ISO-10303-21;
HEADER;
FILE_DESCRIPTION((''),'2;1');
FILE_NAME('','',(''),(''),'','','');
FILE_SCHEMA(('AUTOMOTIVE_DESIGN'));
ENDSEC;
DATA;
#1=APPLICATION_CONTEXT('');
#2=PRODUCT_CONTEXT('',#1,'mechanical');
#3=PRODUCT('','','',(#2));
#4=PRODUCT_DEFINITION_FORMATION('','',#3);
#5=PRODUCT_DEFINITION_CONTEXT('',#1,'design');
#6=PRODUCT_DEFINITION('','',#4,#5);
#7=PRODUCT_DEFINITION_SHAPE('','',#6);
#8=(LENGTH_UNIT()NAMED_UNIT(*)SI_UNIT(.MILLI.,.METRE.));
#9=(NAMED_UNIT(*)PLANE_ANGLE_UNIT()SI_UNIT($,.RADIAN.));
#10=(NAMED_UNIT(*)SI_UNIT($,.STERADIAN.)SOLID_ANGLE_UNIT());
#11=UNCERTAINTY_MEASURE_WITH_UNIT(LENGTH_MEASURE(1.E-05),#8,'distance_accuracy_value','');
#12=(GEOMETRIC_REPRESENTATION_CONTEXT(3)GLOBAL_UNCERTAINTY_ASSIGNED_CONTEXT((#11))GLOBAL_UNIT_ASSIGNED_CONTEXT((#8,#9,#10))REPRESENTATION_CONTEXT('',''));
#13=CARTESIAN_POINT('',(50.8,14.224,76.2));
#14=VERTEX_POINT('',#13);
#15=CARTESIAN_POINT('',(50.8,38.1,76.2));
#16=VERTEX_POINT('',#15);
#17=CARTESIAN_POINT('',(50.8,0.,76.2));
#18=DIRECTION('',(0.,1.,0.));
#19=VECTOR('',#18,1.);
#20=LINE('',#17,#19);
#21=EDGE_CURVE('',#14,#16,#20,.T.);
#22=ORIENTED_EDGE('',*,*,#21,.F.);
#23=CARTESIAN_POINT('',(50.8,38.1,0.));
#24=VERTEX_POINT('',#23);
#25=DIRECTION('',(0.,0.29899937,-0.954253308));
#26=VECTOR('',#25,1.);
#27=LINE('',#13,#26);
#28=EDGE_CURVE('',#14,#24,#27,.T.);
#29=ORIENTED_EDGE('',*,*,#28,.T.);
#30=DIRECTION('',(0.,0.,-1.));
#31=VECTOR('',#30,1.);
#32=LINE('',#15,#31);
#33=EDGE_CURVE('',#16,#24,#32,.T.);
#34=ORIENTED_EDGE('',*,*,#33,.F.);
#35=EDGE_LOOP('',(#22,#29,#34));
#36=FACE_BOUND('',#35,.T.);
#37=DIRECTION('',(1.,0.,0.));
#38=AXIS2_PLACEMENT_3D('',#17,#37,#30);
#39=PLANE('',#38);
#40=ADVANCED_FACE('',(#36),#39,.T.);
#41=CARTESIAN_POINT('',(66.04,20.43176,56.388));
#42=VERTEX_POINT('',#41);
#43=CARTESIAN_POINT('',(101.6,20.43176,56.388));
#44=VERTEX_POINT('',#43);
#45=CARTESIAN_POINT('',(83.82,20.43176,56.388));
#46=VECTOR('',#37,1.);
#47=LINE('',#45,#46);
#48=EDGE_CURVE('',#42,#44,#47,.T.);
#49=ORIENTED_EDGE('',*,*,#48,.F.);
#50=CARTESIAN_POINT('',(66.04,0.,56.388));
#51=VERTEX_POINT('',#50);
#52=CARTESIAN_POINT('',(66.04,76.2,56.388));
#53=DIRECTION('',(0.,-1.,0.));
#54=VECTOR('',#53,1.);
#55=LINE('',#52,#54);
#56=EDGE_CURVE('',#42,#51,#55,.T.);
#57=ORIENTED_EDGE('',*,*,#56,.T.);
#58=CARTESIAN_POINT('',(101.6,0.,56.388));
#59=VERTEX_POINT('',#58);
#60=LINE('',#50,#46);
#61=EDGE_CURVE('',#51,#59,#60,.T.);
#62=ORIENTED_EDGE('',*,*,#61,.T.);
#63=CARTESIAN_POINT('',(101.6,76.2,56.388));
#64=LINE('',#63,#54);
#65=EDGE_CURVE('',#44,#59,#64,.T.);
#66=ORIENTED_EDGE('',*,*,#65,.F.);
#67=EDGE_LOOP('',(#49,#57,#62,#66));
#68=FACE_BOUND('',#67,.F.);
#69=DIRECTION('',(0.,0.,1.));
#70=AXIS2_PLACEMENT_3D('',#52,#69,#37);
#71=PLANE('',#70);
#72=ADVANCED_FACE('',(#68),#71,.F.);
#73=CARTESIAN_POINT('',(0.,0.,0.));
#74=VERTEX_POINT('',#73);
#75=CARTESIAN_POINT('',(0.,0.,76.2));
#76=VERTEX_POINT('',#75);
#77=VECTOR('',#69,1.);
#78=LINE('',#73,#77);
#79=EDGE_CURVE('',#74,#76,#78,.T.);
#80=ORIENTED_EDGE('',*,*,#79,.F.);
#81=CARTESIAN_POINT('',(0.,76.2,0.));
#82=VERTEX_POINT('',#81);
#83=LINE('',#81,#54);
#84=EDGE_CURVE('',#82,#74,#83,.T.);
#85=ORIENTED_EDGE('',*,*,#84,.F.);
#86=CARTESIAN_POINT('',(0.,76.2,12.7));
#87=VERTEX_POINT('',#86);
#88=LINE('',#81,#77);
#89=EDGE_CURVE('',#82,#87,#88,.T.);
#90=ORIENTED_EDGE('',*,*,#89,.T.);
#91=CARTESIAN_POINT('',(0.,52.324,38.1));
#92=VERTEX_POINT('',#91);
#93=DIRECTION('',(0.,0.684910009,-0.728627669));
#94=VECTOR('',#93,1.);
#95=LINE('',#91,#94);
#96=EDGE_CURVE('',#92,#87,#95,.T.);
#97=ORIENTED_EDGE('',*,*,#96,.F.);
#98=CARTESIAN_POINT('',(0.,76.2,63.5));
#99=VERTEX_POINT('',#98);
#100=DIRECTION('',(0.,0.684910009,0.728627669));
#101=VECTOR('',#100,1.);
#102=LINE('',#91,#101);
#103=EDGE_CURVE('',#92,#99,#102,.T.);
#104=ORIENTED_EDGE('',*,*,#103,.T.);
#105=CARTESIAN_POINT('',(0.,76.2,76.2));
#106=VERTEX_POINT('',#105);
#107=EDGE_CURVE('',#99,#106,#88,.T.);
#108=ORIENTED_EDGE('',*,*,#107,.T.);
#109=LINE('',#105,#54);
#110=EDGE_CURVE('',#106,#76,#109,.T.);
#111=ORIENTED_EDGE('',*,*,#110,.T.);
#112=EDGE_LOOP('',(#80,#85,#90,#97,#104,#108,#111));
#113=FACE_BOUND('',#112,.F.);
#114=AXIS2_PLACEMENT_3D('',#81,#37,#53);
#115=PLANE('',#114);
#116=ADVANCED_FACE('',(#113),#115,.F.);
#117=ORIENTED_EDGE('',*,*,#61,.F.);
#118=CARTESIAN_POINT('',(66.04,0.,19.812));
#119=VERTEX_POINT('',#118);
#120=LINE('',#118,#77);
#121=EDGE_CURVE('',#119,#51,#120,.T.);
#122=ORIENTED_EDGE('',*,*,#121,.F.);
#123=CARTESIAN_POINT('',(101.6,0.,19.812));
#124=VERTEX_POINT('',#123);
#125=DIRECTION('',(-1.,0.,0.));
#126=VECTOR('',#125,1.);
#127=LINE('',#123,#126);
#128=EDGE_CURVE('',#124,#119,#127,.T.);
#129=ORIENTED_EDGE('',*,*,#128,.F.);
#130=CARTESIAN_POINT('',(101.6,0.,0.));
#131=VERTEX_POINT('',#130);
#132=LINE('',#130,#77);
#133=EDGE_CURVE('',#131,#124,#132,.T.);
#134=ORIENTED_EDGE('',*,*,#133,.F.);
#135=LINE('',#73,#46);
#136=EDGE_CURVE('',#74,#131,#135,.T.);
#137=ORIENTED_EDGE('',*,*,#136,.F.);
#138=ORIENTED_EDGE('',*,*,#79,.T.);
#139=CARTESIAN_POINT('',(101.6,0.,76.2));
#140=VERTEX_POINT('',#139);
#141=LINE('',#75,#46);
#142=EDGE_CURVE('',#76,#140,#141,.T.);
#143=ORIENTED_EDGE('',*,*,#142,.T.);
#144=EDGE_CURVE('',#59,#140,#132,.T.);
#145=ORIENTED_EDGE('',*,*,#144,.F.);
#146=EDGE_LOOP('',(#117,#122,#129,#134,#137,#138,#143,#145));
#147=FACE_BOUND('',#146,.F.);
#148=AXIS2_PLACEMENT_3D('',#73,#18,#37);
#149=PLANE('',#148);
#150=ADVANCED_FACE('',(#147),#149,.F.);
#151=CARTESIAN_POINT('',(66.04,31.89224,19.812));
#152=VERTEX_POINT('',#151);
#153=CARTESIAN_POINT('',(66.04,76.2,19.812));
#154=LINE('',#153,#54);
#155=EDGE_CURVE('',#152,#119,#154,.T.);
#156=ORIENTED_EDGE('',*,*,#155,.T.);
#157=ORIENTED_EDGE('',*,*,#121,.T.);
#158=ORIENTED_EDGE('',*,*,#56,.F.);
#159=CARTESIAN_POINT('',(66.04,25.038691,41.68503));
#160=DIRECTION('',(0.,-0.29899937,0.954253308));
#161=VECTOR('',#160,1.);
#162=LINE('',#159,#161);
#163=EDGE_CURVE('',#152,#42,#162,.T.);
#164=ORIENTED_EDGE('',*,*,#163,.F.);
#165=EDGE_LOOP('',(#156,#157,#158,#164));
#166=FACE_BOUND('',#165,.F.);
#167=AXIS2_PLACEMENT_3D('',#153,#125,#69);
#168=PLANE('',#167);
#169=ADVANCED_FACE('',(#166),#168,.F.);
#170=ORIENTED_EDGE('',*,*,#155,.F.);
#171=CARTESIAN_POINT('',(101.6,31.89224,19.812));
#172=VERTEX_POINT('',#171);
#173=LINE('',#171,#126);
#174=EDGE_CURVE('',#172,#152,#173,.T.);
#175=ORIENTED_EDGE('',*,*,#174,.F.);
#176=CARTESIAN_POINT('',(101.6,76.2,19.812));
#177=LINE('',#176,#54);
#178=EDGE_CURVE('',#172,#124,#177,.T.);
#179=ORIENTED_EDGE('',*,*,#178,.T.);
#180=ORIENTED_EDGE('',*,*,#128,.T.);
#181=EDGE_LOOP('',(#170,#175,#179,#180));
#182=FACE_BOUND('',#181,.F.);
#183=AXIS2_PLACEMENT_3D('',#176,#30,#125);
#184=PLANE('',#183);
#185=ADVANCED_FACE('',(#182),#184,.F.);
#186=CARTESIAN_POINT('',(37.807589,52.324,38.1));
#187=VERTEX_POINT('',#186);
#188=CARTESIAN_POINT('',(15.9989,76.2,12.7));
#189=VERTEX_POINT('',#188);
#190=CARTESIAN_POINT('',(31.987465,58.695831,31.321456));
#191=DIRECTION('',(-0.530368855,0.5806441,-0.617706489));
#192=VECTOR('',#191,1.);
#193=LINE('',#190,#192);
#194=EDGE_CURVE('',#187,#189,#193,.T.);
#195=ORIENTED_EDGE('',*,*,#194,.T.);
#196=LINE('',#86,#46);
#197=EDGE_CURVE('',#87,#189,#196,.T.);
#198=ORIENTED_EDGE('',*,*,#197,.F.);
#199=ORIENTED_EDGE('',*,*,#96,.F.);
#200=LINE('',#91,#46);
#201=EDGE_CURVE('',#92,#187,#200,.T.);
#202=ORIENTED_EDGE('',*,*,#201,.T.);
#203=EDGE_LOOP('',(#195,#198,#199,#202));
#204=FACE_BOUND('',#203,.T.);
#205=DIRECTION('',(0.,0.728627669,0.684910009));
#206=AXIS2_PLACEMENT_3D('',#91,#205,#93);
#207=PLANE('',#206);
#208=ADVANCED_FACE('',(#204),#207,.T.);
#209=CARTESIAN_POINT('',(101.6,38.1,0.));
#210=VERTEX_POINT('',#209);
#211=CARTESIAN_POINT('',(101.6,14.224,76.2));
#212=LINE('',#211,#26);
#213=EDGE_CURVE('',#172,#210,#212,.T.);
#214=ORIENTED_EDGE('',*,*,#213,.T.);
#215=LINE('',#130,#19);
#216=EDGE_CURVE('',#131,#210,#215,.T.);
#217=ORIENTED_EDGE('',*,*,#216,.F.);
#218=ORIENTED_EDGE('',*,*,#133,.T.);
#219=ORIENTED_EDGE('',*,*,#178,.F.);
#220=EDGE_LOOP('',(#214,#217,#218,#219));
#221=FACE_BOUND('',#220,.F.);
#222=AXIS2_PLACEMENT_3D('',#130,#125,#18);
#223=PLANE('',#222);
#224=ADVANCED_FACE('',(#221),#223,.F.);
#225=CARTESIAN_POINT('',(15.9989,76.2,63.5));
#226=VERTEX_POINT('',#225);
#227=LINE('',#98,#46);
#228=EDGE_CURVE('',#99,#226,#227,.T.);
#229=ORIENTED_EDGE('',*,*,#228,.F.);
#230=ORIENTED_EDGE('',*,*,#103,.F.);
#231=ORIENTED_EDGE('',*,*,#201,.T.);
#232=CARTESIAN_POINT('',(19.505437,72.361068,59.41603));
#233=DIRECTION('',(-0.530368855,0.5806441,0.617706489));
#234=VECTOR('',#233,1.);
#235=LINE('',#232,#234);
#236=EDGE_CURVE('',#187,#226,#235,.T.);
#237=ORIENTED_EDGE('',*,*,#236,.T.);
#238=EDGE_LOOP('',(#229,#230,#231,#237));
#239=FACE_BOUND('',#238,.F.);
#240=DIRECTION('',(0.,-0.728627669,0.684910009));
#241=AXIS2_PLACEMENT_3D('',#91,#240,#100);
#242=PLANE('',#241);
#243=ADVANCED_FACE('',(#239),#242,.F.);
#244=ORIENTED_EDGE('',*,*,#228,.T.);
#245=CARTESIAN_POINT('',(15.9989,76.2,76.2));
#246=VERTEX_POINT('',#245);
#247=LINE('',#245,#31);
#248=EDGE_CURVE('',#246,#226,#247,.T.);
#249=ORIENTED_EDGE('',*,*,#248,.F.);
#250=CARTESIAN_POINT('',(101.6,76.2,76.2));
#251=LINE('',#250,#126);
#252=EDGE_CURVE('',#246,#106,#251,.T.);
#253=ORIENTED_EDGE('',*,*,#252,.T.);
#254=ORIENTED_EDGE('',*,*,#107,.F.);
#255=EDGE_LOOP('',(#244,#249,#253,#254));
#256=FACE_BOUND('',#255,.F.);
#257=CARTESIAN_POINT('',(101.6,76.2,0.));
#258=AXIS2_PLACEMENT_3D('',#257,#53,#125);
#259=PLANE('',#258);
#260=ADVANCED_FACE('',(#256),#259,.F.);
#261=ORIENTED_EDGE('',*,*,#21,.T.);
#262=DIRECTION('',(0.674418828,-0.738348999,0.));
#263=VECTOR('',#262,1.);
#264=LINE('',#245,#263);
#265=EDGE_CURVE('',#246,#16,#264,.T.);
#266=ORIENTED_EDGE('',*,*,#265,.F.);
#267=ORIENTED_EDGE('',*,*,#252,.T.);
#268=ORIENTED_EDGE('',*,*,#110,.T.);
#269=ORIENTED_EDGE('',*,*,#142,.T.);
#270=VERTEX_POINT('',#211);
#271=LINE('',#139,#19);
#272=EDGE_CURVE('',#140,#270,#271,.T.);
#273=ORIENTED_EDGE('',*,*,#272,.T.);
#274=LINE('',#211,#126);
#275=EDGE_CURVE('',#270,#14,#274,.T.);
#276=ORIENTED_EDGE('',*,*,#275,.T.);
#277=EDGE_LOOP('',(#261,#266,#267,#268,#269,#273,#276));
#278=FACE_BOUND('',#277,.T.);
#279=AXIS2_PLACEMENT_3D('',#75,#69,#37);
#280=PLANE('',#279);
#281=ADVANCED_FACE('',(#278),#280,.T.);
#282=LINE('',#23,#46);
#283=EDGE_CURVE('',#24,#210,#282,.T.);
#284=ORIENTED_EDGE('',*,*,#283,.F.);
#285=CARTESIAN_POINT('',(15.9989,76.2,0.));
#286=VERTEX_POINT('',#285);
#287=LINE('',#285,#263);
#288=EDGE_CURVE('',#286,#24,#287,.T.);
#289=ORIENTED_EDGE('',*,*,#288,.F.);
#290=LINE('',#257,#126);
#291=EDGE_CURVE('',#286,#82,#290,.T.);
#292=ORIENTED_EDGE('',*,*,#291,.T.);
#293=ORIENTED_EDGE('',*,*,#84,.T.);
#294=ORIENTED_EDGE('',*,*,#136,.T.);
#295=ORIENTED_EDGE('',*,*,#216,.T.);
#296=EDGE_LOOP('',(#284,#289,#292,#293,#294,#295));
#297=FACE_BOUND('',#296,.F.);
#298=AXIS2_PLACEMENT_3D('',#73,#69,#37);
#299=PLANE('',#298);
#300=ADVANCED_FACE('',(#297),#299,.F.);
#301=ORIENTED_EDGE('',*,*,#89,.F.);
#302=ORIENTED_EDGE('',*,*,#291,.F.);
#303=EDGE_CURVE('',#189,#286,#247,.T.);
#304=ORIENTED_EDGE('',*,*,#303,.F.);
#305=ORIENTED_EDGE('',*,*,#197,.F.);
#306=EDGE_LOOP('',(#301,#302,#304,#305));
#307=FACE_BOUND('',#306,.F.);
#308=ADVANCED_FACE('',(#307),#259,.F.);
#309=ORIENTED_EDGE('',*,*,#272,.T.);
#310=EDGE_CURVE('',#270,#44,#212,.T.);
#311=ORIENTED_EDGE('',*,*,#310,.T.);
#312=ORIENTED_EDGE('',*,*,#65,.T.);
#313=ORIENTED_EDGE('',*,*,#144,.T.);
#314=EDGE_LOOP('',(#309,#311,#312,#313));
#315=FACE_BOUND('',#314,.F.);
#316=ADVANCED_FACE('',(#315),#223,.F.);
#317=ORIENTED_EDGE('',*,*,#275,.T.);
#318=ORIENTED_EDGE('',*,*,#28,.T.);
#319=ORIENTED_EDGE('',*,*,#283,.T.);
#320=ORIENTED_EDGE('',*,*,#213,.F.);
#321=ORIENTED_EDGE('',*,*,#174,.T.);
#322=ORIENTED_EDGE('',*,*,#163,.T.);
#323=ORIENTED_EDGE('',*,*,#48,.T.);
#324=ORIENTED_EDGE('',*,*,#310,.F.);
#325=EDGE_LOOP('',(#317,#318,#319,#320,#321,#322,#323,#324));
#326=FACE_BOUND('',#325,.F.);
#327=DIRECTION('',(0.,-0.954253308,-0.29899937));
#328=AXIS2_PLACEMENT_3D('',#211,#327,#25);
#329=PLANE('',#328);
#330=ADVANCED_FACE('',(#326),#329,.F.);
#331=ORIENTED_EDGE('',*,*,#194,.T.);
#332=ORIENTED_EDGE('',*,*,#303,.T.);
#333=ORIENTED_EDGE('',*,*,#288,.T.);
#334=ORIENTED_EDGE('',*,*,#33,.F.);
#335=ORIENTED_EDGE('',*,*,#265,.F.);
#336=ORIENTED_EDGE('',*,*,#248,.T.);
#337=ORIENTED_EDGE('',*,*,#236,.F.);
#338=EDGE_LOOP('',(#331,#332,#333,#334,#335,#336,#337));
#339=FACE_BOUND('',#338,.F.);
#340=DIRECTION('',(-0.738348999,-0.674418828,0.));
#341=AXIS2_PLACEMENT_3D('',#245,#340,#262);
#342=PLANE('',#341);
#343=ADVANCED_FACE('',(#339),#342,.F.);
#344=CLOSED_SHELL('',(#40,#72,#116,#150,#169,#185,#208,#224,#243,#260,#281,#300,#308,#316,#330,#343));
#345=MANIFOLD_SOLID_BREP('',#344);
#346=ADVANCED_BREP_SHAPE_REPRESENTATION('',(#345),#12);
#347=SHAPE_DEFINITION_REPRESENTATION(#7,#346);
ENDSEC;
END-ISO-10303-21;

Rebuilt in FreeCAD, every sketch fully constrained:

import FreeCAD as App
import Part
import Sketcher
Q = App.Units.Quantity

doc = App.newDocument("Part")
body = doc.addObject("PartDesign::Body", "Body")

# Sketch on XY plane
sketch1 = body.newObject("Sketcher::SketchObject", "Sketch")
sketch1.AttachmentSupport = (doc.getObject("XY_Plane"), [""])
sketch1.MapMode = "FlatFace"
sketch1.addGeometry([
    Part.LineSegment(App.Vector(0, 76, 0), App.Vector(0, 0, 0)),
    Part.LineSegment(App.Vector(0, 0, 0), App.Vector(102, 0, 0)),
    Part.LineSegment(App.Vector(102, 0, 0), App.Vector(102, 76, 0)),
    Part.LineSegment(App.Vector(102, 76, 0), App.Vector(0, 76, 0)),
], False)
sketch1.addConstraint([
    Sketcher.Constraint("Coincident", 0, 2, 1, 1),
    Sketcher.Constraint("Coincident", 1, 2, 2, 1),
    Sketcher.Constraint("Coincident", 2, 2, 3, 1),
    Sketcher.Constraint("Coincident", 3, 2, 0, 1),
    Sketcher.Constraint("Vertical", 0),
    Sketcher.Constraint("Horizontal", 1),
    Sketcher.Constraint("Vertical", 2),
    Sketcher.Constraint("Horizontal", 3),
    Sketcher.Constraint("Coincident", 0, 2, -1, 1),
    Sketcher.Constraint("DistanceX", 1, 1, 1, 2, Q("4 in")),
    Sketcher.Constraint("DistanceY", 0, 2, 0, 1, Q("3 in")),
])
pad1 = body.newObject("PartDesign::Pad", "Pad")
pad1.Profile = sketch1
pad1.Length = Q("3 in")

# Sketch on XZ plane
sketch2 = body.newObject("Sketcher::SketchObject", "Sketch001")
sketch2.AttachmentSupport = (doc.getObject("XZ_Plane"), [""])
sketch2.MapMode = "FlatFace"
sketch2.AttachmentOffset = App.Placement(App.Vector(0, 0, -3 * 25.4), App.Rotation())
sketch2.addGeometry([
    Part.LineSegment(App.Vector(102, 56, 0), App.Vector(102, 20, 0)),
    Part.LineSegment(App.Vector(102, 20, 0), App.Vector(66, 20, 0)),
    Part.LineSegment(App.Vector(66, 20, 0), App.Vector(66, 56, 0)),
    Part.LineSegment(App.Vector(66, 56, 0), App.Vector(102, 56, 0)),
], False)
sketch2.addConstraint([
    Sketcher.Constraint("Coincident", 0, 2, 1, 1),
    Sketcher.Constraint("Coincident", 1, 2, 2, 1),
    Sketcher.Constraint("Coincident", 2, 2, 3, 1),
    Sketcher.Constraint("Coincident", 3, 2, 0, 1),
    Sketcher.Constraint("Vertical", 0),
    Sketcher.Constraint("Horizontal", 1),
    Sketcher.Constraint("Vertical", 2),
    Sketcher.Constraint("Horizontal", 3),
    Sketcher.Constraint("DistanceX", 1, 2, 1, 1, Q("1.4 in")),
    Sketcher.Constraint("DistanceY", 0, 2, 0, 1, Q("1.44 in")),
    Sketcher.Constraint("DistanceY", -1, 1, 0, 2, Q("0.78 in")),
    Sketcher.Constraint("DistanceX", -1, 1, 0, 2, Q("4 in")),
])
pocket1 = body.newObject("PartDesign::Pocket", "Pocket")
pocket1.Profile = sketch2
pocket1.Length = Q("3 in")
pocket1.Reversed = True

# Sketch on XY plane
sketch3 = body.newObject("Sketcher::SketchObject", "Sketch002")
sketch3.AttachmentSupport = (doc.getObject("XY_Plane"), [""])
sketch3.MapMode = "FlatFace"
sketch3.AttachmentOffset = App.Placement(App.Vector(0, 0, 3 * 25.4), App.Rotation())
sketch3.addGeometry([
    Part.LineSegment(App.Vector(102, 38, 0), App.Vector(102, 76, 0)),
    Part.LineSegment(App.Vector(102, 76, 0), App.Vector(16, 76, 0)),
    Part.LineSegment(App.Vector(16, 76, 0), App.Vector(51, 38, 0)),
    Part.LineSegment(App.Vector(51, 38, 0), App.Vector(102, 38, 0)),
], False)
sketch3.addConstraint([
    Sketcher.Constraint("Coincident", 0, 2, 1, 1),
    Sketcher.Constraint("Coincident", 1, 2, 2, 1),
    Sketcher.Constraint("Coincident", 2, 2, 3, 1),
    Sketcher.Constraint("Coincident", 3, 2, 0, 1),
    Sketcher.Constraint("Vertical", 0),
    Sketcher.Constraint("Horizontal", 1),
    Sketcher.Constraint("Horizontal", 3),
    Sketcher.Constraint("DistanceX", 3, 1, 3, 2, Q("2 in")),
    Sketcher.Constraint("DistanceY", 0, 1, 0, 2, Q("1.5 in")),
    Sketcher.Constraint("DistanceX", -1, 1, 2, 2, Q("2 in")),
    Sketcher.Constraint("DistanceY", -1, 1, 2, 2, Q("1.5 in")),
    Sketcher.Constraint("Angle", 2, Q("-47.591 deg")),
])
pocket2 = body.newObject("PartDesign::Pocket", "Pocket001")
pocket2.Profile = sketch3
pocket2.Length = Q("3 in")

# Sketch on YZ plane
sketch4 = body.newObject("Sketcher::SketchObject", "Sketch003")
sketch4.AttachmentSupport = (doc.getObject("YZ_Plane"), [""])
sketch4.MapMode = "FlatFace"
sketch4.AttachmentOffset = App.Placement(App.Vector(0, 0, 4 * 25.4), App.Rotation())
sketch4.addGeometry([
    Part.LineSegment(App.Vector(14, 76, 0), App.Vector(38, 0, 0)),
    Part.LineSegment(App.Vector(38, 0, 0), App.Vector(38, 76, 0)),
    Part.LineSegment(App.Vector(38, 76, 0), App.Vector(14, 76, 0)),
], False)
sketch4.addConstraint([
    Sketcher.Constraint("Coincident", 0, 2, 1, 1),
    Sketcher.Constraint("Coincident", 1, 2, 2, 1),
    Sketcher.Constraint("Coincident", 2, 2, 0, 1),
    Sketcher.Constraint("Vertical", 1),
    Sketcher.Constraint("Horizontal", 2),
    Sketcher.Constraint("PointOnObject", 0, 2, -1),
    Sketcher.Constraint("DistanceX", 2, 2, 2, 1, Q("0.94 in")),
    Sketcher.Constraint("DistanceY", 1, 1, 1, 2, Q("3 in")),
    Sketcher.Constraint("DistanceX", -1, 1, 0, 2, Q("1.5 in")),
])
pocket3 = body.newObject("PartDesign::Pocket", "Pocket002")
pocket3.Profile = sketch4
pocket3.Length = Q("2 in")

# Sketch on YZ plane
sketch5 = body.newObject("Sketcher::SketchObject", "Sketch004")
sketch5.AttachmentSupport = (doc.getObject("YZ_Plane"), [""])
sketch5.MapMode = "FlatFace"
sketch5.addGeometry([
    Part.LineSegment(App.Vector(52, 38, 0), App.Vector(76, 64, 0)),
    Part.LineSegment(App.Vector(76, 64, 0), App.Vector(76, 13, 0)),
    Part.LineSegment(App.Vector(76, 13, 0), App.Vector(52, 38, 0)),
], False)
sketch5.addConstraint([
    Sketcher.Constraint("Coincident", 0, 2, 1, 1),
    Sketcher.Constraint("Coincident", 1, 2, 2, 1),
    Sketcher.Constraint("Coincident", 2, 2, 0, 1),
    Sketcher.Constraint("Vertical", 1),
    Sketcher.Constraint("Equal", 0, 2),
    Sketcher.Constraint("DistanceY", 2, 2, 0, 2, Q("1 in")),
    Sketcher.Constraint("DistanceY", -1, 1, 1, 2, Q("0.5 in")),
    Sketcher.Constraint("DistanceX", 2, 2, 0, 2, Q("0.94 in")),
    Sketcher.Constraint("DistanceX", -1, 1, 0, 2, Q("3 in")),
])
pocket4 = body.newObject("PartDesign::Pocket", "Pocket003")
pocket4.Profile = sketch5
pocket4.Length = Q("2 in")
pocket4.Reversed = True

doc.recompute()
